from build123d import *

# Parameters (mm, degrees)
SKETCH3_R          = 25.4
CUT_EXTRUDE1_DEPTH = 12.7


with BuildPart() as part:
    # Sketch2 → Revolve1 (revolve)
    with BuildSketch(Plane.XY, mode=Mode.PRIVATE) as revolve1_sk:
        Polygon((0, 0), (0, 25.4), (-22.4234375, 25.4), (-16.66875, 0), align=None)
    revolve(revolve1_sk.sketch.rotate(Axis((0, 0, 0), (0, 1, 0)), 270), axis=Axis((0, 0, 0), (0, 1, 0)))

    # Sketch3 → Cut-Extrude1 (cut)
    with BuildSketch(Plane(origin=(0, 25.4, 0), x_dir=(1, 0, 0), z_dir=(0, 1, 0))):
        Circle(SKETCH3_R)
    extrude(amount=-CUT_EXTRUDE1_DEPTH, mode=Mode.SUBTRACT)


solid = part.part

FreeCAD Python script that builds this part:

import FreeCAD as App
import Part
import Sketcher
from FreeCAD import Vector
Q = App.Units.Quantity


def add_polygon(sketch, points):
    """Adds a closed chain of lines whose ends are joined by coincident constraints."""
    first, n = sketch.GeometryCount, len(points)
    for a, b in zip(points, points[1:] + points[:1]):
        sketch.addGeometry(Part.LineSegment(App.Vector(*a, 0), App.Vector(*b, 0)), False)
    for i in range(n):
        sketch.addConstraint(Sketcher.Constraint("Coincident", first + i, 2, first + (i + 1) % n, 1))

doc = App.newDocument("Part")
body = doc.addObject("PartDesign::Body", "Body")

# Sketch on XY plane
sketch1 = doc.addObject("Sketcher::SketchObject", "Sketch")
body.addObject(sketch1)
sketch1.AttachmentSupport = (doc.XY_Plane, [""])
sketch1.MapMode = "FlatFace"
add_polygon(sketch1, [(0, 0), (0, 25), (-22, 25), (-17, 0)])  # lines 0-3
sketch1.addConstraint([
    Sketcher.Constraint("Vertical", 0),
    Sketcher.Constraint("Horizontal", 1),
    Sketcher.Constraint("Horizontal", 3),
    Sketcher.Constraint("Coincident", 3, 2, -1, 1),
    Sketcher.Constraint("DistanceY", 0, 1, 0, 2, Q("1 in")),
    Sketcher.Constraint("DistanceX", 3, 1, 3, 2, Q("0.65625 in")),
    Sketcher.Constraint("Distance", 2, 26.043741),
])
revolution = doc.addObject("PartDesign::Revolution", "Revolution")
body.addObject(revolution)
revolution.Profile = sketch1
revolution.ReferenceAxis = (sketch1, ["V_Axis"])
revolution.Angle = 360

# Sketch on XZ plane
sketch2 = doc.addObject("Sketcher::SketchObject", "Sketch001")
body.addObject(sketch2)
sketch2.AttachmentSupport = (doc.XZ_Plane, [""])
sketch2.MapMode = "FlatFace"
sketch2.AttachmentOffset = App.Placement(Vector(0, 0, -1 * 25.4), App.Rotation())
sketch2.addGeometry(Part.Circle(Vector(0, 0, 0), Vector(0, 0, 1), 25), False)
sketch2.addConstraint([
    Sketcher.Constraint("Coincident", 0, 3, -1, 1),
    Sketcher.Constraint("Diameter", 0, Q("2 in")),
])
pocket1 = doc.addObject("PartDesign::Pocket", "Pocket")
body.addObject(pocket1)
pocket1.Profile = sketch2
pocket1.Length = Q("0.5 in")
pocket1.Reversed = True

doc.recompute()
